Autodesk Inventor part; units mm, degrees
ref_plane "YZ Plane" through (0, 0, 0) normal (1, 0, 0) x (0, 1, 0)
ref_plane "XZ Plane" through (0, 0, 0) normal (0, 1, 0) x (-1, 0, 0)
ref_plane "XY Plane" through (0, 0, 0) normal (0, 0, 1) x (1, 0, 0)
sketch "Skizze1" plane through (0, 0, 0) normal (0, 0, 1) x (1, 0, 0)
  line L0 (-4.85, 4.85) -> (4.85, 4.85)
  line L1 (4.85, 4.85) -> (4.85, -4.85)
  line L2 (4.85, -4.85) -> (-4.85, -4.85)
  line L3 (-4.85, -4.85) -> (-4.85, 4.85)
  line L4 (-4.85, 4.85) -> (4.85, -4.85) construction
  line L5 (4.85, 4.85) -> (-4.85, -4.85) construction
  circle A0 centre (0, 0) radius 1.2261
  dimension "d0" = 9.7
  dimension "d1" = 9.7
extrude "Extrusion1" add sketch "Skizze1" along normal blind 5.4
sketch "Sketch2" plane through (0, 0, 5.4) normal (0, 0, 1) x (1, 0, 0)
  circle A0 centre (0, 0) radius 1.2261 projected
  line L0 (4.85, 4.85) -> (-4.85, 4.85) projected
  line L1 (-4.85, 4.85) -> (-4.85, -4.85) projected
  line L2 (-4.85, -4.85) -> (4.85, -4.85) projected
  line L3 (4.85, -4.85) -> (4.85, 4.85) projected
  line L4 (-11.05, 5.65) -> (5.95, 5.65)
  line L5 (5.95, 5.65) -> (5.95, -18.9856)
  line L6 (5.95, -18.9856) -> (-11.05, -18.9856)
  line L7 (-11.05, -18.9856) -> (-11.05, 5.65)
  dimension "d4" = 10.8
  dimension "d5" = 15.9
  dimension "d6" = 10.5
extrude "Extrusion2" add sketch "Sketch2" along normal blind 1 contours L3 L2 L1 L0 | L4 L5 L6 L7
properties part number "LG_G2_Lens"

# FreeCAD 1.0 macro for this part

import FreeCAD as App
import Part
import Sketcher
from FreeCAD import Vector

doc = App.newDocument("Part")
body = doc.addObject("PartDesign::Body", "Body")

sketch1 = body.newObject("Sketcher::SketchObject", "Sketch")
sketch1.AttachmentSupport = (doc.getObject("XY_Plane"), [""])
sketch1.MapMode = "FlatFace"
sketch1.addGeometry(Part.LineSegment(Vector(4.8, 4.8, 0), Vector(-4.8, 4.8, 0)), False)
sketch1.addGeometry(Part.LineSegment(Vector(-4.8, 4.8, 0), Vector(-4.8, -4.8, 0)), False)
sketch1.addGeometry(Part.LineSegment(Vector(-4.8, -4.8, 0), Vector(4.8, -4.8, 0)), False)
sketch1.addGeometry(Part.LineSegment(Vector(4.8, -4.8, 0), Vector(4.8, 4.8, 0)), False)
sketch1.addGeometry(Part.Circle(Vector(0, 0, 0), Vector(0, 0, 1), 1.2), False)
sketch1.addConstraint(Sketcher.Constraint("Coincident", 0, 2, 1, 1))
sketch1.addConstraint(Sketcher.Constraint("Coincident", 1, 2, 2, 1))
sketch1.addConstraint(Sketcher.Constraint("Coincident", 2, 2, 3, 1))
sketch1.addConstraint(Sketcher.Constraint("Coincident", 3, 2, 0, 1))
sketch1.addConstraint(Sketcher.Constraint("Horizontal", 0))
sketch1.addConstraint(Sketcher.Constraint("Vertical", 1))
sketch1.addConstraint(Sketcher.Constraint("Horizontal", 2))
sketch1.addConstraint(Sketcher.Constraint("Vertical", 3))
sketch1.addConstraint(Sketcher.Constraint("Coincident", 4, 3, -1, 1))
sketch1.addConstraint(Sketcher.Constraint("Symmetric", 0, 2, 2, 2, -1, 1))
sketch1.addConstraint(Sketcher.Constraint("Equal", 2, 1))
sketch1.addConstraint(Sketcher.Constraint("DistanceX", 0, 2, 0, 1, 9.7))
sketch1.addConstraint(Sketcher.Constraint("Diameter", 4, 2.4522))
pad1 = body.newObject("PartDesign::Pad", "Pad")
pad1.Profile = sketch1
pad1.Length = 5.4

sketch2 = body.newObject("Sketcher::SketchObject", "Sketch001")
sketch2.AttachmentSupport = (doc.getObject("XY_Plane"), [""])
sketch2.MapMode = "FlatFace"
sketch2.AttachmentOffset = App.Placement(Vector(0, 0, 5.4), App.Rotation())
sketch2.addGeometry(Part.LineSegment(Vector(6, 5.7, 0), Vector(-11.1, 5.7, 0)), False)
sketch2.addGeometry(Part.LineSegment(Vector(-11.1, 5.7, 0), Vector(-11.1, -19, 0)), False)
sketch2.addGeometry(Part.LineSegment(Vector(-11.1, -19, 0), Vector(6, -19, 0)), False)
sketch2.addGeometry(Part.LineSegment(Vector(6, -19, 0), Vector(6, 5.7, 0)), False)
sketch2.addGeometry(Part.Circle(Vector(0, 0, 0), Vector(0, 0, 1), 1.2), False)
sketch2.addConstraint(Sketcher.Constraint("Coincident", 0, 2, 1, 1))
sketch2.addConstraint(Sketcher.Constraint("Coincident", 1, 2, 2, 1))
sketch2.addConstraint(Sketcher.Constraint("Coincident", 2, 2, 3, 1))
sketch2.addConstraint(Sketcher.Constraint("Coincident", 3, 2, 0, 1))
sketch2.addConstraint(Sketcher.Constraint("Horizontal", 0))
sketch2.addConstraint(Sketcher.Constraint("Vertical", 1))
sketch2.addConstraint(Sketcher.Constraint("Horizontal", 2))
sketch2.addConstraint(Sketcher.Constraint("Vertical", 3))
sketch2.addConstraint(Sketcher.Constraint("Coincident", 4, 3, -1, 1))
sketch2.addConstraint(Sketcher.Constraint("DistanceX", 0, 2, 0, 1, 17.0))
sketch2.addConstraint(Sketcher.Constraint("Diameter", 4, 2.4522))
sketch2.addConstraint(Sketcher.Constraint("DistanceX", 0, 2, -1, 1, 11.05))
sketch2.addConstraint(Sketcher.Constraint("DistanceY", -1, 1, 0, 2, 5.65))
sketch2.addConstraint(Sketcher.Constraint("DistanceY", 1, 2, 1, 1, 24.6356))
pad2 = body.newObject("PartDesign::Pad", "Pad001")
pad2.Profile = sketch2
pad2.Length = 1

doc.recompute()
